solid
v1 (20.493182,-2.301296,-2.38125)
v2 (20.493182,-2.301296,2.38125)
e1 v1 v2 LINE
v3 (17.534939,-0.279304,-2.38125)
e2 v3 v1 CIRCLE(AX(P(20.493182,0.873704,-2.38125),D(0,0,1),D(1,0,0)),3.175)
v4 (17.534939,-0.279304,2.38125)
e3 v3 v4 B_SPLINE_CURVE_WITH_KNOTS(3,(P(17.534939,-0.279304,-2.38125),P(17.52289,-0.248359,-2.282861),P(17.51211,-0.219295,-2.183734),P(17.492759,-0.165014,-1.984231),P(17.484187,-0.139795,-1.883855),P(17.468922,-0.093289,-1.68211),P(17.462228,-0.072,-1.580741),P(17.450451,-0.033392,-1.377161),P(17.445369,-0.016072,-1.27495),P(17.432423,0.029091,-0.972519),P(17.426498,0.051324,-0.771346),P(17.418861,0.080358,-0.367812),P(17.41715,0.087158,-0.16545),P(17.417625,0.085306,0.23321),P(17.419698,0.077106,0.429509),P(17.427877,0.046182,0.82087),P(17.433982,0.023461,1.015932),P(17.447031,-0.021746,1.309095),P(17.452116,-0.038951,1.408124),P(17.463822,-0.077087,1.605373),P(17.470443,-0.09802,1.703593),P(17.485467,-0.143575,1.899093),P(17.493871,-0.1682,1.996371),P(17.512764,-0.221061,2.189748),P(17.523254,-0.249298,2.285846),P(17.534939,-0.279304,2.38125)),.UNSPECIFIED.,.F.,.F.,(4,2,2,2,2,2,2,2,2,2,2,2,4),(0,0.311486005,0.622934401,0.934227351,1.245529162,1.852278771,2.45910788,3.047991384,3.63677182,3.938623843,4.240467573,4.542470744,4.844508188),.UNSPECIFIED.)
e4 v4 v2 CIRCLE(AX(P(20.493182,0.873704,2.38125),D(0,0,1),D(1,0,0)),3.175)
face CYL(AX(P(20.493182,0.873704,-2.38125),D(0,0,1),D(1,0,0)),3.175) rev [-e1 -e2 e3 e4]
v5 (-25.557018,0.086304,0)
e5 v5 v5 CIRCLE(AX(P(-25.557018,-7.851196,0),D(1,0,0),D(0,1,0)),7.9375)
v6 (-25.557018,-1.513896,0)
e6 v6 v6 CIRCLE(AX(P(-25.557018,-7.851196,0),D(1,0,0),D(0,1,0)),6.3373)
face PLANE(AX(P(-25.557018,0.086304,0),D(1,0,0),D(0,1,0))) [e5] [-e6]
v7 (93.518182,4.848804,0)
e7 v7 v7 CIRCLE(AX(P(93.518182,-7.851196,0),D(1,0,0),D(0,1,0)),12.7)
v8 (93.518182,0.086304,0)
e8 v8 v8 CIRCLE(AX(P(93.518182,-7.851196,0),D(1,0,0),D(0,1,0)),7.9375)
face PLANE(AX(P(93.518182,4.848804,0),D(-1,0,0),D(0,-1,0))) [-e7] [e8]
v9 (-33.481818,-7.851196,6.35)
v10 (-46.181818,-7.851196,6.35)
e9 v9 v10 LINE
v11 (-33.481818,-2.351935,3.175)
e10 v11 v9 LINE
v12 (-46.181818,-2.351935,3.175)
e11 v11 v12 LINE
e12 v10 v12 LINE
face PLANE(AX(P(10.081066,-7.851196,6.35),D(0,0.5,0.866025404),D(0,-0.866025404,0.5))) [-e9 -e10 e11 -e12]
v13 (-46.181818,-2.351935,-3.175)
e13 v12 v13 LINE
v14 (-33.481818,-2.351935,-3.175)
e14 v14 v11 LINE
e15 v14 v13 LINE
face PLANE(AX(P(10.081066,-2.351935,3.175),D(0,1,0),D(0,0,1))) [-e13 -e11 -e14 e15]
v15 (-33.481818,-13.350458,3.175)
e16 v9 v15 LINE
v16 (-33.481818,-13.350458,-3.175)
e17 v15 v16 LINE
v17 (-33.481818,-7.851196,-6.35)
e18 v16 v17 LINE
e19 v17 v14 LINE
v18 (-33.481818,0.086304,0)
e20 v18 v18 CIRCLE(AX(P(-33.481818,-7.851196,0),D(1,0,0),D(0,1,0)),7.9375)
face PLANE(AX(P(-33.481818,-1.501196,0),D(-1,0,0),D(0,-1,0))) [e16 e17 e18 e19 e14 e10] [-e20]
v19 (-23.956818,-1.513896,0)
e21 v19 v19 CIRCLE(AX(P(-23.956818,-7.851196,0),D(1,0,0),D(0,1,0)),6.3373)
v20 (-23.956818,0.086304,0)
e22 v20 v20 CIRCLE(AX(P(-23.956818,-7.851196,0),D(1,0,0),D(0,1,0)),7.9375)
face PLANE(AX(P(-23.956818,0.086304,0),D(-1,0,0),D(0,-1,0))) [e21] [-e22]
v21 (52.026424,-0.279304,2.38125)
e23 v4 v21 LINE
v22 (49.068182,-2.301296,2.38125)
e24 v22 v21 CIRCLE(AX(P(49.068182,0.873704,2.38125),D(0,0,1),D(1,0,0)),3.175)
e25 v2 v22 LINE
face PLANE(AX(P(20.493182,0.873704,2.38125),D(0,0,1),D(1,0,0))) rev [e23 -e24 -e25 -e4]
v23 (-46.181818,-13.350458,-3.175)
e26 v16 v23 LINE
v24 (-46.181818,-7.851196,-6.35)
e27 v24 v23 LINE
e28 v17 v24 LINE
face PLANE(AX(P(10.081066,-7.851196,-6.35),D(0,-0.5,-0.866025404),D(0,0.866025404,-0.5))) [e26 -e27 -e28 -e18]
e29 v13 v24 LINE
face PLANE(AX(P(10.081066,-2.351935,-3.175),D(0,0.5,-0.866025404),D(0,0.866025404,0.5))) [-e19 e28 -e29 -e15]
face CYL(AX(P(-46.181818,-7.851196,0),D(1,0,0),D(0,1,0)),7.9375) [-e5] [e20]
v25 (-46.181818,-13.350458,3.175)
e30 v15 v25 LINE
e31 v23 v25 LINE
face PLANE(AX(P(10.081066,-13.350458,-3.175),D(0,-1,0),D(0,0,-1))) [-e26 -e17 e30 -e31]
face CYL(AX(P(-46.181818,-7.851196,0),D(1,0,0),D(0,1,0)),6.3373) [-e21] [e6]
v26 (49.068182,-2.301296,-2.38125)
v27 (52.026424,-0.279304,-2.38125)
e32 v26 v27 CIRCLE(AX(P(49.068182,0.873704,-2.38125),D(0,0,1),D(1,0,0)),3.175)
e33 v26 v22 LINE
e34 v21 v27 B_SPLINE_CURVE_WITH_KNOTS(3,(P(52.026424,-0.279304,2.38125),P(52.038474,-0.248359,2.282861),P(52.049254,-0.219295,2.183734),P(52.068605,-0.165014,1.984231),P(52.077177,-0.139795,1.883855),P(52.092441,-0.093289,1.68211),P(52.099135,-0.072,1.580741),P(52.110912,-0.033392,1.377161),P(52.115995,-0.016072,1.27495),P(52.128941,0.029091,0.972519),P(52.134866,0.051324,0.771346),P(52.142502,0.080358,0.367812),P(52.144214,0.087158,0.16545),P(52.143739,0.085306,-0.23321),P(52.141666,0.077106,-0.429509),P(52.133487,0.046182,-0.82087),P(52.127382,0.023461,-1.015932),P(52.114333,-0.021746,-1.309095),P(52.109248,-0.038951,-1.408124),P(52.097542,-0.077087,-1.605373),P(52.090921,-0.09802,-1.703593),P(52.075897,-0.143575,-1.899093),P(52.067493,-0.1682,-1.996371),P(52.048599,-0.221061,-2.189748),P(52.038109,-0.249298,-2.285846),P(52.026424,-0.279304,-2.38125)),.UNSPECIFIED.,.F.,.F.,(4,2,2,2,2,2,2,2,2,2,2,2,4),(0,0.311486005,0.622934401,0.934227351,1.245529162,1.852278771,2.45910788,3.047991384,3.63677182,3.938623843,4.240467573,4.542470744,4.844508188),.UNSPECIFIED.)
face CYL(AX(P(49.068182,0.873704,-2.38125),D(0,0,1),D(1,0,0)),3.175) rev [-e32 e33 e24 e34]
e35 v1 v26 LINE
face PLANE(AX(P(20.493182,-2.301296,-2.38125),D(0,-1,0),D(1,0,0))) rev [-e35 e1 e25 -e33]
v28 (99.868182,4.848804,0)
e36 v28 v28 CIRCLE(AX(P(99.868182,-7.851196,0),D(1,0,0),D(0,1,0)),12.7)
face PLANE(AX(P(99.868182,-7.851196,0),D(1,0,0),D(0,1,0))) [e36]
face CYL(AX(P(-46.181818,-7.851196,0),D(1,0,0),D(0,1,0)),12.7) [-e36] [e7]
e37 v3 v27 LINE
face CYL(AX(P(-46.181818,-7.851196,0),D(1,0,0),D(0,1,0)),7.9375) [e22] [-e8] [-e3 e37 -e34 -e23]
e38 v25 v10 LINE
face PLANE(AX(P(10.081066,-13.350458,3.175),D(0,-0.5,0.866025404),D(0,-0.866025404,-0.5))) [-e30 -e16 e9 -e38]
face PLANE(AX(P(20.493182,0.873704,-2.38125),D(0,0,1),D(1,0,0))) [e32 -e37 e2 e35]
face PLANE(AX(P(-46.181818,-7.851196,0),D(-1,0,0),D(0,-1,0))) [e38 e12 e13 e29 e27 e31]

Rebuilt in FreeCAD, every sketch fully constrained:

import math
import FreeCAD as App
import Part
import Sketcher
Q = App.Units.Quantity

doc = App.newDocument("Part")
params = doc.addObject("Spreadsheet::Sheet", "Params")
for row, (alias, value) in enumerate([
    ("sketch1_width", "0.5 in"),
    ("sketch1_width2", "5.75 in"),
    ("sketch1_width3", "0.25 in"),
    ("sketch1_width4", "4.625 in"),
    ("sketch1_width5", "0.063 in"),
    ("revolution_angle", "360 deg"),
    ("sketch2_radius", "0.125 in"),
    ("sketch2_width", "1.125 in"),
    ("pocket1_length", "0.1875 in"),
    ("sketch3_height", "0.25 in"),
    ("pocket2_length", "0.5 in"),
], start=1):
    params.set(f"A{row}", alias)
    params.set(f"B{row}", "=" + value)
    params.setAlias(f"B{row}", alias)

body = doc.addObject("PartDesign::Body", "Body")

# Sketch on XY plane
sketch1 = body.newObject("Sketcher::SketchObject", "Sketch")
sketch1.AttachmentSupport = (doc.getObject("XY_Plane"), [""])
sketch1.MapMode = "FlatFace"
sketch1.addGeometry(Part.LineSegment(App.Vector(-46.2, -1.5, 0), App.Vector(-46.2, -7.9, 0)), False)
sketch1.addGeometry(Part.LineSegment(App.Vector(-46.2, -7.9, 0), App.Vector(99.9, -7.9, 0)), False)
sketch1.addGeometry(Part.LineSegment(App.Vector(99.9, -7.9, 0), App.Vector(99.9, 4.8, 0)), False)
sketch1.addGeometry(Part.LineSegment(App.Vector(99.9, 4.8, 0), App.Vector(93.5, 4.8, 0)), False)
sketch1.addGeometry(Part.LineSegment(App.Vector(93.5, 4.8, 0), App.Vector(93.5, 0.1, 0)), False)
sketch1.addGeometry(Part.LineSegment(App.Vector(93.5, 0.1, 0), App.Vector(-24, 0.1, 0)), False)
sketch1.addGeometry(Part.LineSegment(App.Vector(-24, 0.1, 0), App.Vector(-24, -1.5, 0)), False)
sketch1.addGeometry(Part.LineSegment(App.Vector(-24, -1.5, 0), App.Vector(-25.6, -1.5, 0)), False)
sketch1.addGeometry(Part.LineSegment(App.Vector(-25.6, -1.5, 0), App.Vector(-25.6, 0.1, 0)), False)
sketch1.addGeometry(Part.LineSegment(App.Vector(-25.6, 0.1, 0), App.Vector(-33.5, 0.1, 0)), False)
sketch1.addGeometry(Part.LineSegment(App.Vector(-33.5, 0.1, 0), App.Vector(-33.5, -1.5, 0)), False)
sketch1.addGeometry(Part.LineSegment(App.Vector(-33.5, -1.5, 0), App.Vector(-46.2, -1.5, 0)), False)
sketch1.addGeometry(Part.LineSegment(App.Vector(99.9, -7.9, 0), App.Vector(-46.2, -7.9, 0)), True)  # axis
sketch1.addConstraint(Sketcher.Constraint("Coincident", 0, 2, 1, 1))
sketch1.addConstraint(Sketcher.Constraint("Coincident", 1, 2, 2, 1))
sketch1.addConstraint(Sketcher.Constraint("Coincident", 2, 2, 3, 1))
sketch1.addConstraint(Sketcher.Constraint("Coincident", 3, 2, 4, 1))
sketch1.addConstraint(Sketcher.Constraint("Coincident", 4, 2, 5, 1))
sketch1.addConstraint(Sketcher.Constraint("Coincident", 5, 2, 6, 1))
sketch1.addConstraint(Sketcher.Constraint("Coincident", 6, 2, 7, 1))
sketch1.addConstraint(Sketcher.Constraint("Coincident", 7, 2, 8, 1))
sketch1.addConstraint(Sketcher.Constraint("Coincident", 8, 2, 9, 1))
sketch1.addConstraint(Sketcher.Constraint("Coincident", 9, 2, 10, 1))
sketch1.addConstraint(Sketcher.Constraint("Coincident", 10, 2, 11, 1))
sketch1.addConstraint(Sketcher.Constraint("Coincident", 11, 2, 0, 1))
sketch1.addConstraint(Sketcher.Constraint("Vertical", 0))
sketch1.addConstraint(Sketcher.Constraint("Horizontal", 1))
sketch1.addConstraint(Sketcher.Constraint("Vertical", 2))
sketch1.addConstraint(Sketcher.Constraint("Horizontal", 3))
sketch1.addConstraint(Sketcher.Constraint("Vertical", 4))
sketch1.addConstraint(Sketcher.Constraint("Horizontal", 5))
sketch1.addConstraint(Sketcher.Constraint("Vertical", 6))
sketch1.addConstraint(Sketcher.Constraint("Horizontal", 7))
sketch1.addConstraint(Sketcher.Constraint("Vertical", 8))
sketch1.addConstraint(Sketcher.Constraint("Horizontal", 9))
sketch1.addConstraint(Sketcher.Constraint("Vertical", 10))
sketch1.addConstraint(Sketcher.Constraint("Horizontal", 11))
sketch1.addConstraint(Sketcher.Constraint("Horizontal", 12))
sketch1.addConstraint(Sketcher.Constraint("Coincident", 12, 1, 1, 2))
sketch1.addConstraint(Sketcher.Constraint("Horizontal", 5, 2, 8, 2))
sketch1.addConstraint(Sketcher.Constraint("Vertical", 11, 2, 12, 2))
sketch1.addConstraint(Sketcher.Constraint("Equal", 3, 0))
sketch1.addConstraint(Sketcher.Constraint("Equal", 11, 2))
sketch1.addConstraint(Sketcher.Constraint("Equal", 7, 6))
sketch1.addConstraint(Sketcher.Constraint("DistanceX", 11, 2, 11, 1, Q("0.5 in")))
sketch1.addConstraint(Sketcher.Constraint("DistanceX", 1, 1, 1, 2, Q("5.75 in")))
sketch1.addConstraint(Sketcher.Constraint("DistanceX", 3, 2, 3, 1, Q("0.25 in")))
sketch1.addConstraint(Sketcher.Constraint("DistanceX", 5, 2, 5, 1, Q("4.625 in")))
sketch1.addConstraint(Sketcher.Constraint("DistanceX", 7, 2, 7, 1, Q("0.063 in")))
sketch1.addConstraint(Sketcher.Constraint("DistanceY", 4, 2, 4, 1, Q("0.1875 in")))
sketch1.addConstraint(Sketcher.Constraint("DistanceX", 0, 2, -1, 1, 46.181818))
sketch1.addConstraint(Sketcher.Constraint("DistanceY", 0, 2, -1, 1, 7.851196))
sketch1.setExpression("Constraints[31]", "Params.sketch1_width")
sketch1.setExpression("Constraints[32]", "Params.sketch1_width2")
sketch1.setExpression("Constraints[33]", "Params.sketch1_width3")
sketch1.setExpression("Constraints[34]", "Params.sketch1_width4")
sketch1.setExpression("Constraints[35]", "Params.sketch1_width5")
revolution = body.newObject("PartDesign::Revolution", "Revolution")
revolution.Profile = sketch1
revolution.ReferenceAxis = (sketch1, ["Axis0"])
revolution.setExpression("Angle", "Params.revolution_angle")

# Sketch on XY plane
sketch2 = body.newObject("Sketcher::SketchObject", "Sketch001")
sketch2.AttachmentSupport = (doc.getObject("XY_Plane"), [""])
sketch2.MapMode = "FlatFace"
sketch2.addGeometry(Part.LineSegment(App.Vector(17.3, 5.8, 0), App.Vector(17.3, 0.9, 0)), False)
sketch2.addGeometry(Part.ArcOfCircle(Part.Circle(App.Vector(20.5, 0.9, 0), App.Vector(0, 0, 1), 3.2), math.radians(180), math.radians(270)), False)
sketch2.addGeometry(Part.LineSegment(App.Vector(20.5, -2.3, 0), App.Vector(49.1, -2.3, 0)), False)
sketch2.addGeometry(Part.ArcOfCircle(Part.Circle(App.Vector(49.1, 0.9, 0), App.Vector(0, 0, 1), 3.2), math.radians(-90), math.radians(0)), False)
sketch2.addGeometry(Part.LineSegment(App.Vector(52.2, 0.9, 0), App.Vector(52.2, 5.8, 0)), False)
sketch2.addGeometry(Part.LineSegment(App.Vector(52.2, 5.8, 0), App.Vector(17.3, 5.8, 0)), False)
sketch2.addConstraint(Sketcher.Constraint("Tangent", 0, 2, 1, 1))
sketch2.addConstraint(Sketcher.Constraint("Tangent", 1, 2, 2, 1))
sketch2.addConstraint(Sketcher.Constraint("Tangent", 2, 2, 3, 1))
sketch2.addConstraint(Sketcher.Constraint("Tangent", 3, 2, 4, 1))
sketch2.addConstraint(Sketcher.Constraint("Coincident", 4, 2, 5, 1))
sketch2.addConstraint(Sketcher.Constraint("Coincident", 5, 2, 0, 1))
sketch2.addConstraint(Sketcher.Constraint("Vertical", 0))
sketch2.addConstraint(Sketcher.Constraint("Horizontal", 2))
sketch2.addConstraint(Sketcher.Constraint("Vertical", 4))
sketch2.addConstraint(Sketcher.Constraint("Horizontal", 5))
sketch2.addConstraint(Sketcher.Constraint("Equal", 1, 3))
sketch2.addConstraint(Sketcher.Constraint("Radius", 1, Q("0.125 in")))
sketch2.addConstraint(Sketcher.Constraint("DistanceX", 2, 1, 2, 2, Q("1.125 in")))
sketch2.addConstraint(Sketcher.Constraint("DistanceY", 0, 2, 0, 1, 4.90766))
sketch2.addConstraint(Sketcher.Constraint("DistanceX", -1, 1, 1, 3, 20.493182))
sketch2.addConstraint(Sketcher.Constraint("DistanceY", -1, 1, 1, 3, 0.873704))
sketch2.setExpression("Constraints[11]", "Params.sketch2_radius")
sketch2.setExpression("Constraints[12]", "Params.sketch2_width")
pocket1 = body.newObject("PartDesign::Pocket", "Pocket")
pocket1.Profile = sketch2
pocket1.setExpression("Length", "Params.pocket1_length")
pocket1.Midplane = True

# Sketch on YZ plane
sketch3 = body.newObject("Sketcher::SketchObject", "Sketch002")
sketch3.AttachmentSupport = (doc.getObject("YZ_Plane"), [""])
sketch3.MapMode = "FlatFace"
sketch3.AttachmentOffset = App.Placement(App.Vector(0, 0, -46.181818), App.Rotation())
sketch3.addGeometry(Part.LineSegment(App.Vector(21, -29, 0), App.Vector(-37, -29, 0)), False)
sketch3.addGeometry(Part.LineSegment(App.Vector(-37, -29, 0), App.Vector(-37, 29, 0)), False)
sketch3.addGeometry(Part.LineSegment(App.Vector(-37, 29, 0), App.Vector(21, 29, 0)), False)
sketch3.addGeometry(Part.LineSegment(App.Vector(21, 29, 0), App.Vector(21, -29, 0)), False)
sketch3.addGeometry(Part.LineSegment(App.Vector(-2, 3, 0), App.Vector(-8, 6, 0)), False)
sketch3.addGeometry(Part.LineSegment(App.Vector(-8, 6, 0), App.Vector(-13, 3, 0)), False)
sketch3.addGeometry(Part.LineSegment(App.Vector(-13, 3, 0), App.Vector(-13, -3, 0)), False)
sketch3.addGeometry(Part.LineSegment(App.Vector(-13, -3, 0), App.Vector(-8, -6, 0)), False)
sketch3.addGeometry(Part.LineSegment(App.Vector(-8, -6, 0), App.Vector(-2, -3, 0)), False)
sketch3.addGeometry(Part.LineSegment(App.Vector(-2, -3, 0), App.Vector(-2, 3, 0)), False)
sketch3.addConstraint(Sketcher.Constraint("Coincident", 0, 2, 1, 1))
sketch3.addConstraint(Sketcher.Constraint("Coincident", 1, 2, 2, 1))
sketch3.addConstraint(Sketcher.Constraint("Coincident", 2, 2, 3, 1))
sketch3.addConstraint(Sketcher.Constraint("Coincident", 3, 2, 0, 1))
sketch3.addConstraint(Sketcher.Constraint("Coincident", 4, 2, 5, 1))
sketch3.addConstraint(Sketcher.Constraint("Coincident", 5, 2, 6, 1))
sketch3.addConstraint(Sketcher.Constraint("Coincident", 6, 2, 7, 1))
sketch3.addConstraint(Sketcher.Constraint("Coincident", 7, 2, 8, 1))
sketch3.addConstraint(Sketcher.Constraint("Coincident", 8, 2, 9, 1))
sketch3.addConstraint(Sketcher.Constraint("Coincident", 9, 2, 4, 1))
sketch3.addConstraint(Sketcher.Constraint("Horizontal", 0))
sketch3.addConstraint(Sketcher.Constraint("Vertical", 1))
sketch3.addConstraint(Sketcher.Constraint("Horizontal", 2))
sketch3.addConstraint(Sketcher.Constraint("Vertical", 3))
sketch3.addConstraint(Sketcher.Constraint("Vertical", 6))
sketch3.addConstraint(Sketcher.Constraint("Vertical", 9))
sketch3.addConstraint(Sketcher.Constraint("Symmetric", 4, 2, 7, 2, -1))
sketch3.addConstraint(Sketcher.Constraint("Parallel", 4, 7))
sketch3.addConstraint(Sketcher.Constraint("Parallel", 5, 8))
sketch3.addConstraint(Sketcher.Constraint("Horizontal", 6, 2, 8, 2))
sketch3.addConstraint(Sketcher.Constraint("Horizontal", 5, 2, 9, 2))
sketch3.addConstraint(Sketcher.Constraint("Equal", 2, 1))
sketch3.addConstraint(Sketcher.Constraint("Angle", 4, Q("150 deg")))
sketch3.addConstraint(Sketcher.Constraint("DistanceY", 6, 2, 6, 1, Q("0.25 in")))
sketch3.addConstraint(Sketcher.Constraint("DistanceY", 7, 2, 4, 2, Q("0.5 in")))
sketch3.addConstraint(Sketcher.Constraint("DistanceX", 0, 2, 0, 1, 57.48))
sketch3.addConstraint(Sketcher.Constraint("DistanceX", 0, 2, -1, 1, 36.591))
sketch3.addConstraint(Sketcher.Constraint("DistanceY", 0, 2, -1, 1, 28.74))
sketch3.addConstraint(Sketcher.Constraint("DistanceX", 4, 2, -1, 1, 7.851196))
sketch3.setExpression("Constraints[23]", "Params.sketch3_height")
pocket2 = body.newObject("PartDesign::Pocket", "Pocket001")
pocket2.Profile = sketch3
pocket2.setExpression("Length", "Params.pocket2_length")
pocket2.Reversed = True

doc.recompute()
